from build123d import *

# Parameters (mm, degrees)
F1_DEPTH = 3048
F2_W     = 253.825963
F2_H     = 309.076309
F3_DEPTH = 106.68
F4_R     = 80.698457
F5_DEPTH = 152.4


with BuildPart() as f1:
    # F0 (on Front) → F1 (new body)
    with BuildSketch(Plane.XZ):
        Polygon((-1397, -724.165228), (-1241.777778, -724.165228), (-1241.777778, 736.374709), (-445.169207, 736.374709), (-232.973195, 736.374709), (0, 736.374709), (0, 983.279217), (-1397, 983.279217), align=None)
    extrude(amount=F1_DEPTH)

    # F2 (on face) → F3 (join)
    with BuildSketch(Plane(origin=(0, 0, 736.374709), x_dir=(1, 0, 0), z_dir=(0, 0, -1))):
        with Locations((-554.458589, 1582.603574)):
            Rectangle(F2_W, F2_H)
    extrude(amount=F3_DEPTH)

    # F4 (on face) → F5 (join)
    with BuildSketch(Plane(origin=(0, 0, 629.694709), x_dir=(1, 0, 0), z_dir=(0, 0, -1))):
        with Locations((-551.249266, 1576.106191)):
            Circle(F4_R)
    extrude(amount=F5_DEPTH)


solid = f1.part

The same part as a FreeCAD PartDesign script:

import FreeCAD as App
import Part
import Sketcher
from FreeCAD import Vector
Q = App.Units.Quantity

doc = App.newDocument("Part")
body = doc.addObject("PartDesign::Body", "Body")

# Sketch on XZ plane
sketch1 = body.newObject("Sketcher::SketchObject", "Sketch")
sketch1.AttachmentSupport = (doc.getObject("XZ_Plane"), [""])
sketch1.MapMode = "FlatFace"
sketch1.addGeometry(Part.LineSegment(Vector(-1397, -724.165228, 0), Vector(-1241.777778, -724.165228, 0)), False)
sketch1.addGeometry(Part.LineSegment(Vector(-1241.777778, -724.165228, 0), Vector(-1241.777778, 736.374709, 0)), False)
sketch1.addGeometry(Part.LineSegment(Vector(-1241.777778, 736.374709, 0), Vector(0, 736.374709, 0)), False)
sketch1.addGeometry(Part.LineSegment(Vector(0, 736.374709, 0), Vector(0, 983.279217, 0)), False)
sketch1.addGeometry(Part.LineSegment(Vector(0, 983.279217, 0), Vector(-1397, 983.279217, 0)), False)
sketch1.addGeometry(Part.LineSegment(Vector(-1397, 983.279217, 0), Vector(-1397, -724.165228, 0)), False)
sketch1.addConstraint(Sketcher.Constraint("Coincident", 0, 2, 1, 1))
sketch1.addConstraint(Sketcher.Constraint("Coincident", 1, 2, 2, 1))
sketch1.addConstraint(Sketcher.Constraint("Coincident", 2, 2, 3, 1))
sketch1.addConstraint(Sketcher.Constraint("Coincident", 3, 2, 4, 1))
sketch1.addConstraint(Sketcher.Constraint("Coincident", 4, 2, 5, 1))
sketch1.addConstraint(Sketcher.Constraint("Coincident", 5, 2, 0, 1))
sketch1.addConstraint(Sketcher.Constraint("Horizontal", 0))
sketch1.addConstraint(Sketcher.Constraint("Vertical", 1))
sketch1.addConstraint(Sketcher.Constraint("Horizontal", 2))
sketch1.addConstraint(Sketcher.Constraint("Vertical", 3))
sketch1.addConstraint(Sketcher.Constraint("Horizontal", 4))
sketch1.addConstraint(Sketcher.Constraint("Vertical", 5))
sketch1.addConstraint(Sketcher.Constraint("PointOnObject", 2, 2, -2))
sketch1.addConstraint(Sketcher.Constraint("DistanceX", 4, 2, 4, 1, Q("55 in")))
sketch1.addConstraint(Sketcher.Constraint("DistanceX", 2, 1, 2, 2, 1241.777778))
sketch1.addConstraint(Sketcher.Constraint("DistanceY", 1, 1, 1, 2, 1460.539937))
sketch1.addConstraint(Sketcher.Constraint("DistanceY", 3, 1, 3, 2, 246.904508))
sketch1.addConstraint(Sketcher.Constraint("DistanceY", 0, 2, -1, 1, 724.165228))
pad1 = body.newObject("PartDesign::Pad", "Pad")
pad1.Profile = sketch1
pad1.Length = Q("120 in")

# Sketch on XY plane
sketch2 = body.newObject("Sketcher::SketchObject", "Sketch001")
sketch2.AttachmentSupport = (doc.getObject("XY_Plane"), [""])
sketch2.MapMode = "FlatFace"
sketch2.AttachmentOffset = App.Placement(Vector(0, 0, 736.374709), App.Rotation())
sketch2.addGeometry(Part.LineSegment(Vector(-681.37157, -1737.141728, 0), Vector(-681.37157, -1428.065419, 0)), False)
sketch2.addGeometry(Part.LineSegment(Vector(-681.37157, -1428.065419, 0), Vector(-427.545608, -1428.065419, 0)), False)
sketch2.addGeometry(Part.LineSegment(Vector(-427.545608, -1428.065419, 0), Vector(-427.545608, -1737.141728, 0)), False)
sketch2.addGeometry(Part.LineSegment(Vector(-427.545608, -1737.141728, 0), Vector(-681.37157, -1737.141728, 0)), False)
sketch2.addConstraint(Sketcher.Constraint("Coincident", 0, 2, 1, 1))
sketch2.addConstraint(Sketcher.Constraint("Coincident", 1, 2, 2, 1))
sketch2.addConstraint(Sketcher.Constraint("Coincident", 2, 2, 3, 1))
sketch2.addConstraint(Sketcher.Constraint("Coincident", 3, 2, 0, 1))
sketch2.addConstraint(Sketcher.Constraint("Vertical", 0))
sketch2.addConstraint(Sketcher.Constraint("Horizontal", 1))
sketch2.addConstraint(Sketcher.Constraint("Vertical", 2))
sketch2.addConstraint(Sketcher.Constraint("Horizontal", 3))
sketch2.addConstraint(Sketcher.Constraint("DistanceY", 0, 1, 0, 2, 309.076309))
sketch2.addConstraint(Sketcher.Constraint("DistanceX", 1, 1, 1, 2, 253.825963))
sketch2.addConstraint(Sketcher.Constraint("DistanceX", 0, 2, -1, 1, 681.37157))
sketch2.addConstraint(Sketcher.Constraint("DistanceY", 0, 2, -1, 1, 1428.065419))
pad2 = body.newObject("PartDesign::Pad", "Pad001")
pad2.Profile = sketch2
pad2.Length = Q("4.2 in")
pad2.Reversed = True

# Sketch on XY plane
sketch3 = body.newObject("Sketcher::SketchObject", "Sketch002")
sketch3.AttachmentSupport = (doc.getObject("XY_Plane"), [""])
sketch3.MapMode = "FlatFace"
sketch3.AttachmentOffset = App.Placement(Vector(0, 0, 629.694709), App.Rotation())
sketch3.addGeometry(Part.Circle(Vector(-551.249266, -1576.106191, 0), Vector(0, 0, 1), 80.698457), False)
sketch3.addConstraint(Sketcher.Constraint("Diameter", 0, 161.396914))
sketch3.addConstraint(Sketcher.Constraint("DistanceY", 0, 3, -1, 1, 1576.106191))
sketch3.addConstraint(Sketcher.Constraint("DistanceX", 0, 3, -1, 1, 551.249266))
pad3 = body.newObject("PartDesign::Pad", "Pad002")
pad3.Profile = sketch3
pad3.Length = Q("6 in")
pad3.Reversed = True

doc.recompute()
